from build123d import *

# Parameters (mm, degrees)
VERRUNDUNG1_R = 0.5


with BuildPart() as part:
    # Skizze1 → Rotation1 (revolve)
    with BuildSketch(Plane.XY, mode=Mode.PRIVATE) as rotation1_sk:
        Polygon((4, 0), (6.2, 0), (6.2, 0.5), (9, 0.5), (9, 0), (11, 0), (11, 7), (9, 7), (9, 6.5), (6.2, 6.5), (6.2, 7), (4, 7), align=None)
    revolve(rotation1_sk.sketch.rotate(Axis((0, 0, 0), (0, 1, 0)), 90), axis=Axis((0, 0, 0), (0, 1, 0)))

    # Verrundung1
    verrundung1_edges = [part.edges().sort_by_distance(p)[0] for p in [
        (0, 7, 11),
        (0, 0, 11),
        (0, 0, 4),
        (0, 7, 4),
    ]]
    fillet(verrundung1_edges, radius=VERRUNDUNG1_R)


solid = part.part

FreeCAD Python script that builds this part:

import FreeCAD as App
import Part
import Sketcher
from FreeCAD import Vector
Q = App.Units.Quantity


def edges_at(feature, points):
    """Names of the edges that pass closest to the given points."""
    edges = feature.Shape.Edges
    near = lambda p: min(range(len(edges)), key=lambda i: edges[i].distToShape(Part.Vertex(*p))[0])
    return sorted({f"Edge{near(p) + 1}" for p in points})

doc = App.newDocument("Part")
body = doc.addObject("PartDesign::Body", "Body")

sketch1 = body.newObject("Sketcher::SketchObject", "Sketch")
sketch1.AttachmentSupport = (doc.getObject("XY_Plane"), [""])
sketch1.MapMode = "FlatFace"
sketch1.addGeometry([
    Part.LineSegment(Vector(4, 0, 0), Vector(6.2, 0, 0)),
    Part.LineSegment(Vector(6.2, 0, 0), Vector(6.2, 0.5, 0)),
    Part.LineSegment(Vector(6.2, 0.5, 0), Vector(9, 0.5, 0)),
    Part.LineSegment(Vector(9, 0.5, 0), Vector(9, 0, 0)),
    Part.LineSegment(Vector(9, 0, 0), Vector(11, 0, 0)),
    Part.LineSegment(Vector(11, 0, 0), Vector(11, 7, 0)),
    Part.LineSegment(Vector(11, 7, 0), Vector(9, 7, 0)),
    Part.LineSegment(Vector(9, 7, 0), Vector(9, 6.5, 0)),
    Part.LineSegment(Vector(9, 6.5, 0), Vector(6.2, 6.5, 0)),
    Part.LineSegment(Vector(6.2, 6.5, 0), Vector(6.2, 7, 0)),
    Part.LineSegment(Vector(6.2, 7, 0), Vector(4, 7, 0)),
    Part.LineSegment(Vector(4, 7, 0), Vector(4, 0, 0)),
], False)
sketch1.addConstraint([
    Sketcher.Constraint("Coincident", 0, 2, 1, 1),
    Sketcher.Constraint("Coincident", 1, 2, 2, 1),
    Sketcher.Constraint("Coincident", 2, 2, 3, 1),
    Sketcher.Constraint("Coincident", 3, 2, 4, 1),
    Sketcher.Constraint("Coincident", 4, 2, 5, 1),
    Sketcher.Constraint("Coincident", 5, 2, 6, 1),
    Sketcher.Constraint("Coincident", 6, 2, 7, 1),
    Sketcher.Constraint("Coincident", 7, 2, 8, 1),
    Sketcher.Constraint("Coincident", 8, 2, 9, 1),
    Sketcher.Constraint("Coincident", 9, 2, 10, 1),
    Sketcher.Constraint("Coincident", 10, 2, 11, 1),
    Sketcher.Constraint("Coincident", 11, 2, 0, 1),
    Sketcher.Constraint("Horizontal", 0),
    Sketcher.Constraint("Vertical", 1),
    Sketcher.Constraint("Horizontal", 2),
    Sketcher.Constraint("Vertical", 3),
    Sketcher.Constraint("Horizontal", 4),
    Sketcher.Constraint("Vertical", 5),
    Sketcher.Constraint("Horizontal", 6),
    Sketcher.Constraint("Vertical", 7),
    Sketcher.Constraint("Horizontal", 8),
    Sketcher.Constraint("Vertical", 9),
    Sketcher.Constraint("Horizontal", 10),
    Sketcher.Constraint("Vertical", 11),
    Sketcher.Constraint("PointOnObject", 0, 2, -1),
    Sketcher.Constraint("PointOnObject", 3, 2, -1),
    Sketcher.Constraint("Horizontal", 6, 2, 9, 2),
    Sketcher.Constraint("Vertical", 3, 2, 6, 2),
    Sketcher.Constraint("Vertical", 1, 2, 8, 2),
    Sketcher.Constraint("Equal", 3, 7),
    Sketcher.Constraint("DistanceX", 4, 1, 4, 2, Q("2 mm")),
    Sketcher.Constraint("DistanceY", 5, 1, 5, 2, Q("7 mm")),
    Sketcher.Constraint("DistanceX", 0, 1, 0, 2, Q("2.2 mm")),
    Sketcher.Constraint("DistanceX", 2, 1, 2, 2, Q("2.8 mm")),
    Sketcher.Constraint("DistanceY", 1, 1, 1, 2, Q("0.5 mm")),
    Sketcher.Constraint("DistanceX", -1, 1, 2, 2, Q("9 mm")),
])
revolution = body.newObject("PartDesign::Revolution", "Revolution")
revolution.Profile = sketch1
revolution.ReferenceAxis = (sketch1, ["V_Axis"])
revolution.Angle = 360
doc.recompute()

fillet = body.newObject("PartDesign::Fillet", "Fillet")
fillet.Base = (revolution, edges_at(revolution, [
    (0, 7, 11),
    (0, 0, 11),
    (0, 0, 4),
    (0, 7, 4),
]))
fillet.Radius = 0.5

doc.recompute()
